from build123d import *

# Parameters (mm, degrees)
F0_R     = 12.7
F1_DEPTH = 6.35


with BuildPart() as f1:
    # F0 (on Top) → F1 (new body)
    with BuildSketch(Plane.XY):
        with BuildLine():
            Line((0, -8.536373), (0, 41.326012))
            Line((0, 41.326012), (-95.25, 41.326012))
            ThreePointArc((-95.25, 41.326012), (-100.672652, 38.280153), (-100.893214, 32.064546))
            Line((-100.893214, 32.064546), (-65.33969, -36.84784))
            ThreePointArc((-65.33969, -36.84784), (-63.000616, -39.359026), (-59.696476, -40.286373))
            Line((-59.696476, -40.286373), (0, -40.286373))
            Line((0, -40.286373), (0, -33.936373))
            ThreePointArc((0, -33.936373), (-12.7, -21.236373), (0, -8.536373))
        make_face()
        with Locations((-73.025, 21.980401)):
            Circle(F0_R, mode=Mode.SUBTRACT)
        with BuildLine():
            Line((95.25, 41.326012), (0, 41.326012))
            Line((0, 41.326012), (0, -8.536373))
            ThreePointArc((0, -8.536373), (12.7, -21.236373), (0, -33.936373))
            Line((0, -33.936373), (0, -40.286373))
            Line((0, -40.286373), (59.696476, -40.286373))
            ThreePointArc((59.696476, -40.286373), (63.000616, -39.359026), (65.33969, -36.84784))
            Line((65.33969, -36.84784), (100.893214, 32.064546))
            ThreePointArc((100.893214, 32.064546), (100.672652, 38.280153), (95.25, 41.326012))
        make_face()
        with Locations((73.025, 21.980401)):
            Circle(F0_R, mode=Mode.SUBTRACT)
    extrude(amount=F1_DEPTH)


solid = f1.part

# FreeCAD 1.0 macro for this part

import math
import FreeCAD as App
import Part
import Sketcher
Q = App.Units.Quantity

doc = App.newDocument("Part")
body = doc.addObject("PartDesign::Body", "Body")

# Sketch on XY plane
sketch1 = body.newObject("Sketcher::SketchObject", "Sketch")
sketch1.AttachmentSupport = (doc.getObject("XY_Plane"), [""])
sketch1.MapMode = "FlatFace"
sketch1.addGeometry([
    Part.ArcOfCircle(Part.Circle(App.Vector(-95.25, 34.976012, 0), App.Vector(0, 0, 1), 6.35), math.radians(89.999996), math.radians(207.290271)),  # 0
    Part.LineSegment(App.Vector(-100.893214, 32.064546, 0), App.Vector(-65.33969, -36.84784, 0)),  # 1
    Part.ArcOfCircle(Part.Circle(App.Vector(-59.696478, -33.936375, 0), App.Vector(0, 0, 1), 6.349998), math.radians(-152.709734), math.radians(-89.999986)),  # 2
    Part.LineSegment(App.Vector(-59.696476, -40.286373, 0), App.Vector(59.696476, -40.286373, 0)),  # 3
    Part.ArcOfCircle(Part.Circle(App.Vector(59.696478, -33.936375, 0), App.Vector(0, 0, 1), 6.349998), math.radians(-90.000014), math.radians(-27.290266)),  # 4
    Part.LineSegment(App.Vector(65.33969, -36.84784, 0), App.Vector(100.893214, 32.064546, 0)),  # 5
    Part.ArcOfCircle(Part.Circle(App.Vector(95.25, 34.976012, 0), App.Vector(0, 0, 1), 6.35), math.radians(-27.290271), math.radians(90.000004)),  # 6
    Part.LineSegment(App.Vector(95.25, 41.326012, 0), App.Vector(-95.25, 41.326012, 0)),  # 7
    Part.Circle(App.Vector(0, -21.236373, 0), App.Vector(0, 0, 1), 12.7),  # 8
    Part.Circle(App.Vector(-73.025, 21.980401, 0), App.Vector(0, 0, 1), 12.7),  # 9
    Part.Circle(App.Vector(73.025, 21.980401, 0), App.Vector(0, 0, 1), 12.7),  # 10
], False)
sketch1.addConstraint([
    Sketcher.Constraint("Coincident", 0, 2, 1, 1),
    Sketcher.Constraint("Coincident", 1, 2, 2, 1),
    Sketcher.Constraint("Coincident", 2, 2, 3, 1),
    Sketcher.Constraint("Coincident", 3, 2, 4, 1),
    Sketcher.Constraint("Coincident", 4, 2, 5, 1),
    Sketcher.Constraint("Coincident", 5, 2, 6, 1),
    Sketcher.Constraint("Coincident", 6, 2, 7, 1),
    Sketcher.Constraint("Coincident", 7, 2, 0, 1),
    Sketcher.Constraint("Horizontal", 3),
    Sketcher.Constraint("Horizontal", 7),
    Sketcher.Constraint("PointOnObject", 8, 3, -2),
    Sketcher.Constraint("Diameter", 8, Q("1 in")),
    Sketcher.Constraint("Diameter", 9, Q("1 in")),
    Sketcher.Constraint("Diameter", 10, Q("1 in")),
    Sketcher.Constraint("Radius", 0, Q("0.25 in")),
    Sketcher.Constraint("Radius", 2, Q("0.2499999 in")),
    Sketcher.Constraint("Radius", 4, Q("0.2499999 in")),
    Sketcher.Constraint("Radius", 6, Q("0.25 in")),
    Sketcher.Constraint("DistanceX", 7, 2, 7, 1, Q("7.5 in")),
    Sketcher.Constraint("DistanceX", 0, 3, 6, 3, Q("7.5 in")),
    Sketcher.Constraint("DistanceY", 2, 3, 8, 3, Q("0.5000001 in")),
    Sketcher.Constraint("DistanceX", 0, 3, -1, 1, Q("3.75 in")),
    Sketcher.Constraint("DistanceX", -1, 1, 6, 2, Q("3.75 in")),
    Sketcher.Constraint("DistanceX", 9, 3, 10, 3, Q("5.75 in")),
    Sketcher.Constraint("DistanceX", 9, 3, -1, 1, Q("2.875 in")),
    Sketcher.Constraint("DistanceX", 3, 1, 3, 2, Q("119.392952 mm")),
    Sketcher.Constraint("DistanceY", -1, 1, 9, 3, Q("21.980401 mm")),
    Sketcher.Constraint("DistanceY", -1, 1, 10, 3, Q("21.980401 mm")),
    Sketcher.Constraint("DistanceX", 1, 2, -1, 1, Q("65.33969 mm")),
    Sketcher.Constraint("DistanceY", 1, 2, -1, 1, Q("36.84784 mm")),
    Sketcher.Constraint("DistanceX", -1, 1, 4, 2, Q("65.33969 mm")),
    Sketcher.Constraint("DistanceY", 4, 2, -1, 1, Q("36.84784 mm")),
    Sketcher.Constraint("DistanceY", -1, 1, 6, 2, Q("41.326012 mm")),
    Sketcher.Constraint("DistanceY", 2, 3, 0, 2, Q("66.000921 mm")),
    Sketcher.Constraint("DistanceX", 0, 2, 4, 3, Q("160.589692 mm")),
    Sketcher.Constraint("DistanceY", 4, 3, 5, 2, Q("66.000921 mm")),
    Sketcher.Constraint("DistanceX", 3, 2, 5, 2, Q("41.196738 mm")),
])
pad1 = body.newObject("PartDesign::Pad", "Pad")
pad1.Profile = sketch1
pad1.Length = Q("0.25 in")

doc.recompute()
